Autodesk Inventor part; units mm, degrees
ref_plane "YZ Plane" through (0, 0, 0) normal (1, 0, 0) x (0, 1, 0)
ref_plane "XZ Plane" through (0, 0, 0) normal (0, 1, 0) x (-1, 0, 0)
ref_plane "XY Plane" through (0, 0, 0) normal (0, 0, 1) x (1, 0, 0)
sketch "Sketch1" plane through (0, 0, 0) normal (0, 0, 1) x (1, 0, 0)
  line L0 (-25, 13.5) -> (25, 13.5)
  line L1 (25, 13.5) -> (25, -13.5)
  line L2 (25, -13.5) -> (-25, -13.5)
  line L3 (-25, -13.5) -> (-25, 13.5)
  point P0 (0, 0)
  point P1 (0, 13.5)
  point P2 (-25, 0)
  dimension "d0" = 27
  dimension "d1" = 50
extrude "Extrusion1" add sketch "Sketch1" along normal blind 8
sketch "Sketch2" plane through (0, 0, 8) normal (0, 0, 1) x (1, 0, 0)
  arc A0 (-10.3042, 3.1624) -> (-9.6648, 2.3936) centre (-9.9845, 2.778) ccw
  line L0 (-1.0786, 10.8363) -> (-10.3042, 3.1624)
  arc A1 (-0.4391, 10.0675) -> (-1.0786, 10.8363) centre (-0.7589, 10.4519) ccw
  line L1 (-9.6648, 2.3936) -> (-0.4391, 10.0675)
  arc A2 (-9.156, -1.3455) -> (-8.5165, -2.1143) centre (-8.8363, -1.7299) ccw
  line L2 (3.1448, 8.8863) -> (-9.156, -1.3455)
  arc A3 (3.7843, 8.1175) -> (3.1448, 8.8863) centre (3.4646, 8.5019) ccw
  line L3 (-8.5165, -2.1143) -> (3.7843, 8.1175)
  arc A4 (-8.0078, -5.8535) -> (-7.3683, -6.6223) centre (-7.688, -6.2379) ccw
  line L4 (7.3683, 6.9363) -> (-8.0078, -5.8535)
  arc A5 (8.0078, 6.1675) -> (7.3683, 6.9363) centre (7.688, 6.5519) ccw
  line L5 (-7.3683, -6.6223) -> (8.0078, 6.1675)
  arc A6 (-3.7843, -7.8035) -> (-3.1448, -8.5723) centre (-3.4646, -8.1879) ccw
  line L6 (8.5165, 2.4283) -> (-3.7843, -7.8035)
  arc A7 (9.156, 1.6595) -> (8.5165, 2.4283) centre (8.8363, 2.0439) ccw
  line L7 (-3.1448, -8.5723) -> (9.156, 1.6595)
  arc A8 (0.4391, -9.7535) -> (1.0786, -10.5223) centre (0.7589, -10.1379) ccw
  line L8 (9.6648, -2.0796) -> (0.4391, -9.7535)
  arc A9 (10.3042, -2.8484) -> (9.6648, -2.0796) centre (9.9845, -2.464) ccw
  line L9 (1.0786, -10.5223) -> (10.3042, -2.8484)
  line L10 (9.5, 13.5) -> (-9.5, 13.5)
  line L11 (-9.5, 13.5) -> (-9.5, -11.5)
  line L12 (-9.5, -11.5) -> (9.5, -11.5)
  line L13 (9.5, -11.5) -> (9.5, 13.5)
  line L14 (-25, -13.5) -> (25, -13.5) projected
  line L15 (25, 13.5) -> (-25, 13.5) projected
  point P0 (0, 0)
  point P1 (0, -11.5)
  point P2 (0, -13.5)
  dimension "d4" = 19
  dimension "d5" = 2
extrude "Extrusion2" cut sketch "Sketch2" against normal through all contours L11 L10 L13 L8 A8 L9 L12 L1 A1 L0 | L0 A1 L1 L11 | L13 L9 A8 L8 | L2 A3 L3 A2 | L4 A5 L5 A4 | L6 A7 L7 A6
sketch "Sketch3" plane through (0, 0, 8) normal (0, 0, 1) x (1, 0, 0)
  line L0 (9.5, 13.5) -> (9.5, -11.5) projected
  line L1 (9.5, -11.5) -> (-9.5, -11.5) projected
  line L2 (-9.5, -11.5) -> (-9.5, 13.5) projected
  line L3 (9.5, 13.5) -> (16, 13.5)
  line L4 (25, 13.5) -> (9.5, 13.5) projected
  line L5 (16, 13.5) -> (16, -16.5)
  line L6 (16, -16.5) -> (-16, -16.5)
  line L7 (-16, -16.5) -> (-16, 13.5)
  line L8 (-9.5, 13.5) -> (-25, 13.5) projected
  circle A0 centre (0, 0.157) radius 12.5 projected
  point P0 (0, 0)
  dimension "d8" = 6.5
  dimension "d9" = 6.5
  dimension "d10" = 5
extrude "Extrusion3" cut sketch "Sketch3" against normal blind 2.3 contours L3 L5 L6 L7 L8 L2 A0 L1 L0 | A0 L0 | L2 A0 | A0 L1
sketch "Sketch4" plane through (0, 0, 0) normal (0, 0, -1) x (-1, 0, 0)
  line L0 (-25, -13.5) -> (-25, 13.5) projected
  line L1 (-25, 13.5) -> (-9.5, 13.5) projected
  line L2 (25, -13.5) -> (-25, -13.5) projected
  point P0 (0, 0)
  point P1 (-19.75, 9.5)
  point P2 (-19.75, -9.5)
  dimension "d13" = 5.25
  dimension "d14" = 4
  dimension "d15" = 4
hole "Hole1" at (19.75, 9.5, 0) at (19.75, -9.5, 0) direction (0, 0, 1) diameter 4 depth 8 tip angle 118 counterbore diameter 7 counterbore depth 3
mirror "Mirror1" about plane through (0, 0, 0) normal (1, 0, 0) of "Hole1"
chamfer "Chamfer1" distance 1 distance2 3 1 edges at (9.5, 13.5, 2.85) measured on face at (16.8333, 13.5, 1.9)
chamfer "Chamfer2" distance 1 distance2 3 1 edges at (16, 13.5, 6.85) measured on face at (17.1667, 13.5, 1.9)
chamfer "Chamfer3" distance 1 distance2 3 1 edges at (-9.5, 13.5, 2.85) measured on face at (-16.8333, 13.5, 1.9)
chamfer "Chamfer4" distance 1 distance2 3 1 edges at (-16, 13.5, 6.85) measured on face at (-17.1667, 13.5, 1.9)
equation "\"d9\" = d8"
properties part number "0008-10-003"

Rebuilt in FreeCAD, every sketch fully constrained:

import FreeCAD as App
import Part
import Sketcher
from FreeCAD import Vector


def edges_at(feature, points):
    """Names of the edges that pass closest to the given points."""
    edges = feature.Shape.Edges
    near = lambda p: min(range(len(edges)), key=lambda i: edges[i].distToShape(Part.Vertex(*p))[0])
    return sorted({f"Edge{near(p) + 1}" for p in points})

doc = App.newDocument("Part")
params = doc.addObject("Spreadsheet::Sheet", "Params")
for row, (alias, value) in enumerate([
    ("sketch1_width", "50 mm"),
    ("sketch1_height", "27 mm"),
    ("pad1_length", "8 mm"),
    ("sketch2_width", "19 mm"),
    ("sketch2_height", "25 mm"),
    ("sketch3_width", "6.5 mm"),
    ("sketch3_width2", "19 mm"),
    ("sketch3_height", "25 mm"),
    ("pocket2_length", "2.3 mm"),
    ("sketch4_diameter", "4 mm"),
    ("hole_diameter", "4 mm"),
    ("hole_depth", "8 mm"),
    ("hole_cbore_diameter", "7 mm"),
    ("hole_cbore_depth", "3 mm"),
    ("chamfer_size", "1 mm"),
    ("chamfer_size2", "3 mm"),
    ("chamfer2_size", "1 mm"),
    ("chamfer2_size2", "3 mm"),
    ("chamfer3_size", "1 mm"),
    ("chamfer3_size2", "3 mm"),
    ("chamfer4_size", "1 mm"),
    ("chamfer4_size2", "3 mm"),
], start=1):
    params.set(f"A{row}", alias)
    params.set(f"B{row}", "=" + value)
    params.setAlias(f"B{row}", alias)

body = doc.addObject("PartDesign::Body", "Body")

sketch1 = doc.addObject("Sketcher::SketchObject", "Sketch")
body.addObject(sketch1)
sketch1.AttachmentSupport = (doc.XY_Plane, [""])
sketch1.MapMode = "FlatFace"
sketch1.addGeometry([
    Part.LineSegment(Vector(25, 14, 0), Vector(-25, 14, 0)),
    Part.LineSegment(Vector(-25, 14, 0), Vector(-25, -14, 0)),
    Part.LineSegment(Vector(-25, -14, 0), Vector(25, -14, 0)),
    Part.LineSegment(Vector(25, -14, 0), Vector(25, 14, 0)),
], False)
sketch1.addConstraint([
    Sketcher.Constraint("Coincident", 0, 2, 1, 1),
    Sketcher.Constraint("Coincident", 1, 2, 2, 1),
    Sketcher.Constraint("Coincident", 2, 2, 3, 1),
    Sketcher.Constraint("Coincident", 3, 2, 0, 1),
    Sketcher.Constraint("Horizontal", 0),
    Sketcher.Constraint("Vertical", 1),
    Sketcher.Constraint("Horizontal", 2),
    Sketcher.Constraint("Vertical", 3),
    Sketcher.Constraint("Symmetric", 0, 2, 2, 2, -1, 1),
    Sketcher.Constraint("DistanceX", 0, 2, 0, 1, 50.0),
    Sketcher.Constraint("DistanceY", 1, 2, 1, 1, 27.0),
])
sketch1.setExpression("Constraints[9]", "Params.sketch1_width")
sketch1.setExpression("Constraints[10]", "Params.sketch1_height")
pad1 = doc.addObject("PartDesign::Pad", "Pad")
body.addObject(pad1)
pad1.Profile = sketch1
pad1.setExpression("Length", "Params.pad1_length")

sketch2 = doc.addObject("Sketcher::SketchObject", "Sketch001")
body.addObject(sketch2)
sketch2.AttachmentSupport = (doc.XY_Plane, [""])
sketch2.MapMode = "FlatFace"
sketch2.AttachmentOffset = App.Placement(Vector(0, 0, 8), App.Rotation())
sketch2.addGeometry([
    Part.LineSegment(Vector(-10, 14, 0), Vector(-10, -12, 0)),
    Part.LineSegment(Vector(-10, -12, 0), Vector(10, -12, 0)),
    Part.LineSegment(Vector(10, -12, 0), Vector(10, 14, 0)),
    Part.LineSegment(Vector(10, 14, 0), Vector(-10, 14, 0)),
], False)
sketch2.addConstraint([
    Sketcher.Constraint("Coincident", 0, 2, 1, 1),
    Sketcher.Constraint("Coincident", 1, 2, 2, 1),
    Sketcher.Constraint("Coincident", 2, 2, 3, 1),
    Sketcher.Constraint("Coincident", 3, 2, 0, 1),
    Sketcher.Constraint("Vertical", 0),
    Sketcher.Constraint("Horizontal", 1),
    Sketcher.Constraint("Vertical", 2),
    Sketcher.Constraint("Horizontal", 3),
    Sketcher.Constraint("DistanceX", 1, 1, 1, 2, 19.0),
    Sketcher.Constraint("DistanceY", 0, 2, 0, 1, 25.0),
    Sketcher.Constraint("DistanceX", 0, 2, -1, 1, 9.5),
    Sketcher.Constraint("DistanceY", 0, 2, -1, 1, 11.5),
])
sketch2.setExpression("Constraints[8]", "Params.sketch2_width")
sketch2.setExpression("Constraints[9]", "Params.sketch2_height")
pocket1 = doc.addObject("PartDesign::Pocket", "Pocket")
body.addObject(pocket1)
pocket1.Profile = sketch2
pocket1.Type = "ThroughAll"

sketch3 = doc.addObject("Sketcher::SketchObject", "Sketch002")
body.addObject(sketch3)
sketch3.AttachmentSupport = (doc.XY_Plane, [""])
sketch3.MapMode = "FlatFace"
sketch3.AttachmentOffset = App.Placement(Vector(0, 0, 8), App.Rotation())
sketch3.addGeometry([
    Part.LineSegment(Vector(16, 14, 0), Vector(10, 14, 0)),
    Part.LineSegment(Vector(10, 14, 0), Vector(10, -12, 0)),
    Part.LineSegment(Vector(10, -12, 0), Vector(-10, -12, 0)),
    Part.LineSegment(Vector(-10, -12, 0), Vector(-10, 14, 0)),
    Part.LineSegment(Vector(-10, 14, 0), Vector(-16, 14, 0)),
    Part.LineSegment(Vector(-16, 14, 0), Vector(-16, -16, 0)),
    Part.LineSegment(Vector(-16, -16, 0), Vector(16, -16, 0)),
    Part.LineSegment(Vector(16, -16, 0), Vector(16, 14, 0)),
], False)
sketch3.addConstraint([
    Sketcher.Constraint("Coincident", 0, 2, 1, 1),
    Sketcher.Constraint("Coincident", 1, 2, 2, 1),
    Sketcher.Constraint("Coincident", 2, 2, 3, 1),
    Sketcher.Constraint("Coincident", 3, 2, 4, 1),
    Sketcher.Constraint("Coincident", 4, 2, 5, 1),
    Sketcher.Constraint("Coincident", 5, 2, 6, 1),
    Sketcher.Constraint("Coincident", 6, 2, 7, 1),
    Sketcher.Constraint("Coincident", 7, 2, 0, 1),
    Sketcher.Constraint("Horizontal", 0),
    Sketcher.Constraint("Vertical", 1),
    Sketcher.Constraint("Horizontal", 2),
    Sketcher.Constraint("Vertical", 3),
    Sketcher.Constraint("Horizontal", 4),
    Sketcher.Constraint("Vertical", 5),
    Sketcher.Constraint("Horizontal", 6),
    Sketcher.Constraint("Vertical", 7),
    Sketcher.Constraint("Symmetric", 0, 2, 3, 2, -2),
    Sketcher.Constraint("Equal", 0, 4),
    Sketcher.Constraint("DistanceX", 0, 2, 0, 1, 6.5),
    Sketcher.Constraint("DistanceY", 5, 2, 2, 2, 5.0),
    Sketcher.Constraint("DistanceX", 2, 2, 2, 1, 19.0),
    Sketcher.Constraint("DistanceY", 1, 2, 1, 1, 25.0),
    Sketcher.Constraint("DistanceY", -1, 1, 0, 2, 13.5),
])
sketch3.setExpression("Constraints[18]", "Params.sketch3_width")
sketch3.setExpression("Constraints[20]", "Params.sketch3_width2")
sketch3.setExpression("Constraints[21]", "Params.sketch3_height")
pocket2 = doc.addObject("PartDesign::Pocket", "Pocket001")
body.addObject(pocket2)
pocket2.Profile = sketch3
pocket2.setExpression("Length", "Params.pocket2_length")

sketch4 = doc.addObject("Sketcher::SketchObject", "Sketch003")
body.addObject(sketch4)
sketch4.AttachmentSupport = (doc.XY_Plane, [""])
sketch4.MapMode = "FlatFace"
sketch4.addGeometry([
    Part.Circle(Vector(19.8, 9.5, 0), Vector(0, 0, 1), 2),
    Part.Circle(Vector(19.8, -9.5, 0), Vector(0, 0, 1), 2),
], False)
sketch4.addConstraint([
    Sketcher.Constraint("Equal", 0, 1),
    Sketcher.Constraint("Symmetric", 0, 3, 1, 3, -1),
    Sketcher.Constraint("Diameter", 0, 4.0),
    Sketcher.Constraint("DistanceY", 1, 3, 0, 3, 19.0),
    Sketcher.Constraint("DistanceX", -1, 1, 0, 3, 19.75),
])
sketch4.setExpression("Constraints[2]", "Params.sketch4_diameter")
doc.recompute()
hole = doc.addObject("PartDesign::Hole", "Hole")
body.addObject(hole)
hole.Profile = sketch4
hole.ThreadType = "None"
hole.setExpression("Diameter", "Params.hole_diameter")
hole.DepthType = "Dimension"
hole.setExpression("Depth", "Params.hole_depth")
hole.DrillPoint = "Angled"
hole.DrillPointAngle = 118
hole.HoleCutType = "Counterbore"
hole.setExpression("HoleCutDiameter", "Params.hole_cbore_diameter")
hole.setExpression("HoleCutDepth", "Params.hole_cbore_depth")
hole.Reversed = True
doc.recompute()

mirrored = doc.addObject("PartDesign::Mirrored", "Mirrored")
body.addObject(mirrored)
mirrored.Originals = [hole]
mirrored.MirrorPlane = (doc.YZ_Plane, [""])
body.Tip = mirrored
doc.recompute()

chamfer = doc.addObject("PartDesign::Chamfer", "Chamfer")
body.addObject(chamfer)
chamfer.Base = (mirrored, edges_at(mirrored, [(9.5, 13.5, 2.85)]))
chamfer.ChamferType = "Two distances"
chamfer.setExpression("Size", "Params.chamfer_size")
chamfer.setExpression("Size2", "Params.chamfer_size2")
doc.recompute()

chamfer2 = doc.addObject("PartDesign::Chamfer", "Chamfer001")
body.addObject(chamfer2)
chamfer2.Base = (chamfer, edges_at(chamfer, [(16, 13.5, 6.85)]))
chamfer2.ChamferType = "Two distances"
chamfer2.setExpression("Size", "Params.chamfer2_size")
chamfer2.setExpression("Size2", "Params.chamfer2_size2")
doc.recompute()

chamfer3 = doc.addObject("PartDesign::Chamfer", "Chamfer002")
body.addObject(chamfer3)
chamfer3.Base = (chamfer2, edges_at(chamfer2, [(-9.5, 13.5, 2.85)]))
chamfer3.ChamferType = "Two distances"
chamfer3.setExpression("Size", "Params.chamfer3_size")
chamfer3.setExpression("Size2", "Params.chamfer3_size2")
doc.recompute()

chamfer4 = doc.addObject("PartDesign::Chamfer", "Chamfer003")
body.addObject(chamfer4)
chamfer4.Base = (chamfer3, edges_at(chamfer3, [(-16, 13.5, 6.85)]))
chamfer4.ChamferType = "Two distances"
chamfer4.setExpression("Size", "Params.chamfer4_size")
chamfer4.setExpression("Size2", "Params.chamfer4_size2")

doc.recompute()
